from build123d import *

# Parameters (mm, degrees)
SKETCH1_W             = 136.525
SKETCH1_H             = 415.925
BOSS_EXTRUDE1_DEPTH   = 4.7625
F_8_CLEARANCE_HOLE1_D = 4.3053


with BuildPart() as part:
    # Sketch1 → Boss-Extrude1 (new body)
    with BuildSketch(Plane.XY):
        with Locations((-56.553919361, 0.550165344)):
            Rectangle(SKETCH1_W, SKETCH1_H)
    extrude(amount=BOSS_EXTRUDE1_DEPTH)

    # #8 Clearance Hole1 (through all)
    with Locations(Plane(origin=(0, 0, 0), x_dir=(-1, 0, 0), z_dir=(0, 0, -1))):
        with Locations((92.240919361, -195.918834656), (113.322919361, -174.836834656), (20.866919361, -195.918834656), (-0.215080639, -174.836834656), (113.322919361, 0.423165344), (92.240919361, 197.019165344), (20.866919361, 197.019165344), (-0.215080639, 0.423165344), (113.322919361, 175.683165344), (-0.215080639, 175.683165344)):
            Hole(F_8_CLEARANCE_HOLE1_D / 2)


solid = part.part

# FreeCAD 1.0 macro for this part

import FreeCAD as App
import Part
import Sketcher
Q = App.Units.Quantity


def add_polygon(sketch, points):
    """Adds a closed chain of lines whose ends are joined by coincident constraints."""
    first, n = sketch.GeometryCount, len(points)
    for a, b in zip(points, points[1:] + points[:1]):
        sketch.addGeometry(Part.LineSegment(App.Vector(*a, 0), App.Vector(*b, 0)), False)
    for i in range(n):
        sketch.addConstraint(Sketcher.Constraint("Coincident", first + i, 2, first + (i + 1) % n, 1))

doc = App.newDocument("Part")
params = doc.addObject("Spreadsheet::Sheet", "Params")
for row, (alias, value) in enumerate([
    ("sketch1_width", "5.375 in"),
    ("sketch1_height", "16.375 in"),
    ("pad1_length", "0.1875 in"),
    ("hole_diameter", "0.1695 in"),
], start=1):
    params.set(f"A{row}", alias)
    params.set(f"B{row}", "=" + value)
    params.setAlias(f"B{row}", alias)

body = doc.addObject("PartDesign::Body", "Body")

# Sketch on XY plane
sketch1 = body.newObject("Sketcher::SketchObject", "Sketch")
sketch1.AttachmentSupport = (doc.getObject("XY_Plane"), [""])
sketch1.MapMode = "FlatFace"
add_polygon(sketch1, [(-125, 209), (-125, -207), (12, -207), (12, 209)])  # lines 0-3
sketch1.addConstraint(Sketcher.Constraint("Vertical", 0))
sketch1.addConstraint(Sketcher.Constraint("Horizontal", 1))
sketch1.addConstraint(Sketcher.Constraint("Vertical", 2))
sketch1.addConstraint(Sketcher.Constraint("Horizontal", 3))
sketch1.addConstraint(Sketcher.Constraint("DistanceX", 1, 1, 1, 2, Q("5.375 in")))
sketch1.addConstraint(Sketcher.Constraint("DistanceY", 0, 2, 0, 1, Q("16.375 in")))
sketch1.addConstraint(Sketcher.Constraint("DistanceX", 0, 2, -1, 1, Q("124.816419 mm")))
sketch1.addConstraint(Sketcher.Constraint("DistanceY", 0, 2, -1, 1, Q("207.412335 mm")))
sketch1.setExpression("Constraints[8]", "Params.sketch1_width")
sketch1.setExpression("Constraints[9]", "Params.sketch1_height")
pad1 = body.newObject("PartDesign::Pad", "Pad")
pad1.Profile = sketch1
pad1.setExpression("Length", "Params.pad1_length")

# Sketch on XY plane
sketch2 = body.newObject("Sketcher::SketchObject", "Sketch001")
sketch2.AttachmentSupport = (doc.getObject("XY_Plane"), [""])
sketch2.MapMode = "FlatFace"
sketch2.addGeometry(Part.Circle(App.Vector(-92.2, -195.9, 0), App.Vector(0, 0, 1), 2.2), False)
sketch2.addGeometry(Part.Circle(App.Vector(-113.3, -174.8, 0), App.Vector(0, 0, 1), 2.2), False)
sketch2.addGeometry(Part.Circle(App.Vector(-20.9, -195.9, 0), App.Vector(0, 0, 1), 2.2), False)
sketch2.addGeometry(Part.Circle(App.Vector(0.2, -174.8, 0), App.Vector(0, 0, 1), 2.2), False)
sketch2.addGeometry(Part.Circle(App.Vector(-113.3, 0.4, 0), App.Vector(0, 0, 1), 2.2), False)
sketch2.addGeometry(Part.Circle(App.Vector(-92.2, 197, 0), App.Vector(0, 0, 1), 2.2), False)
sketch2.addGeometry(Part.Circle(App.Vector(-20.9, 197, 0), App.Vector(0, 0, 1), 2.2), False)
sketch2.addGeometry(Part.Circle(App.Vector(0.2, 0.4, 0), App.Vector(0, 0, 1), 2.2), False)
sketch2.addGeometry(Part.Circle(App.Vector(-113.3, 175.7, 0), App.Vector(0, 0, 1), 2.2), False)
sketch2.addGeometry(Part.Circle(App.Vector(0.2, 175.7, 0), App.Vector(0, 0, 1), 2.2), False)
sketch2.addConstraint(Sketcher.Constraint("Equal", 0, 1))
sketch2.addConstraint(Sketcher.Constraint("Equal", 1, 2))
sketch2.addConstraint(Sketcher.Constraint("Equal", 2, 3))
sketch2.addConstraint(Sketcher.Constraint("Equal", 3, 4))
sketch2.addConstraint(Sketcher.Constraint("Equal", 4, 5))
sketch2.addConstraint(Sketcher.Constraint("Equal", 5, 6))
sketch2.addConstraint(Sketcher.Constraint("Equal", 6, 7))
sketch2.addConstraint(Sketcher.Constraint("Equal", 7, 8))
sketch2.addConstraint(Sketcher.Constraint("Equal", 8, 9))
sketch2.addConstraint(Sketcher.Constraint("Horizontal", 0, 3, 2, 3))
sketch2.addConstraint(Sketcher.Constraint("Horizontal", 1, 3, 3, 3))
sketch2.addConstraint(Sketcher.Constraint("Horizontal", 5, 3, 6, 3))
sketch2.addConstraint(Sketcher.Constraint("Horizontal", 4, 3, 7, 3))
sketch2.addConstraint(Sketcher.Constraint("Horizontal", 8, 3, 9, 3))
sketch2.addConstraint(Sketcher.Constraint("Vertical", 1, 3, 4, 3))
sketch2.addConstraint(Sketcher.Constraint("Vertical", 0, 3, 5, 3))
sketch2.addConstraint(Sketcher.Constraint("Vertical", 2, 3, 6, 3))
sketch2.addConstraint(Sketcher.Constraint("Vertical", 3, 3, 7, 3))
sketch2.addConstraint(Sketcher.Constraint("Vertical", 4, 3, 8, 3))
sketch2.addConstraint(Sketcher.Constraint("Vertical", 7, 3, 9, 3))
sketch2.addConstraint(Sketcher.Constraint("Diameter", 0, Q("0.1695 in")))
sketch2.addConstraint(Sketcher.Constraint("DistanceY", 1, 3, 4, 3, Q("6.9 in")))
sketch2.addConstraint(Sketcher.Constraint("DistanceY", 4, 3, 8, 3, Q("6.9 in")))
sketch2.addConstraint(Sketcher.Constraint("DistanceX", 1, 3, 0, 3, Q("0.83 in")))
sketch2.addConstraint(Sketcher.Constraint("DistanceY", 0, 3, 1, 3, Q("0.83 in")))
sketch2.addConstraint(Sketcher.Constraint("DistanceX", 0, 3, 2, 3, Q("2.81 in")))
sketch2.addConstraint(Sketcher.Constraint("DistanceX", 2, 3, 3, 3, Q("0.83 in")))
sketch2.addConstraint(Sketcher.Constraint("DistanceY", 4, 3, 5, 3, Q("7.74 in")))
sketch2.addConstraint(Sketcher.Constraint("DistanceX", 0, 3, -1, 1, Q("92.240919 mm")))
sketch2.addConstraint(Sketcher.Constraint("DistanceY", 0, 3, -1, 1, Q("195.918835 mm")))
doc.recompute()
hole = body.newObject("PartDesign::Hole", "Hole")
hole.Profile = sketch2
hole.ThreadType = "None"
hole.setExpression("Diameter", "Params.hole_diameter")
hole.DepthType = "ThroughAll"
hole.Reversed = True

doc.recompute()
